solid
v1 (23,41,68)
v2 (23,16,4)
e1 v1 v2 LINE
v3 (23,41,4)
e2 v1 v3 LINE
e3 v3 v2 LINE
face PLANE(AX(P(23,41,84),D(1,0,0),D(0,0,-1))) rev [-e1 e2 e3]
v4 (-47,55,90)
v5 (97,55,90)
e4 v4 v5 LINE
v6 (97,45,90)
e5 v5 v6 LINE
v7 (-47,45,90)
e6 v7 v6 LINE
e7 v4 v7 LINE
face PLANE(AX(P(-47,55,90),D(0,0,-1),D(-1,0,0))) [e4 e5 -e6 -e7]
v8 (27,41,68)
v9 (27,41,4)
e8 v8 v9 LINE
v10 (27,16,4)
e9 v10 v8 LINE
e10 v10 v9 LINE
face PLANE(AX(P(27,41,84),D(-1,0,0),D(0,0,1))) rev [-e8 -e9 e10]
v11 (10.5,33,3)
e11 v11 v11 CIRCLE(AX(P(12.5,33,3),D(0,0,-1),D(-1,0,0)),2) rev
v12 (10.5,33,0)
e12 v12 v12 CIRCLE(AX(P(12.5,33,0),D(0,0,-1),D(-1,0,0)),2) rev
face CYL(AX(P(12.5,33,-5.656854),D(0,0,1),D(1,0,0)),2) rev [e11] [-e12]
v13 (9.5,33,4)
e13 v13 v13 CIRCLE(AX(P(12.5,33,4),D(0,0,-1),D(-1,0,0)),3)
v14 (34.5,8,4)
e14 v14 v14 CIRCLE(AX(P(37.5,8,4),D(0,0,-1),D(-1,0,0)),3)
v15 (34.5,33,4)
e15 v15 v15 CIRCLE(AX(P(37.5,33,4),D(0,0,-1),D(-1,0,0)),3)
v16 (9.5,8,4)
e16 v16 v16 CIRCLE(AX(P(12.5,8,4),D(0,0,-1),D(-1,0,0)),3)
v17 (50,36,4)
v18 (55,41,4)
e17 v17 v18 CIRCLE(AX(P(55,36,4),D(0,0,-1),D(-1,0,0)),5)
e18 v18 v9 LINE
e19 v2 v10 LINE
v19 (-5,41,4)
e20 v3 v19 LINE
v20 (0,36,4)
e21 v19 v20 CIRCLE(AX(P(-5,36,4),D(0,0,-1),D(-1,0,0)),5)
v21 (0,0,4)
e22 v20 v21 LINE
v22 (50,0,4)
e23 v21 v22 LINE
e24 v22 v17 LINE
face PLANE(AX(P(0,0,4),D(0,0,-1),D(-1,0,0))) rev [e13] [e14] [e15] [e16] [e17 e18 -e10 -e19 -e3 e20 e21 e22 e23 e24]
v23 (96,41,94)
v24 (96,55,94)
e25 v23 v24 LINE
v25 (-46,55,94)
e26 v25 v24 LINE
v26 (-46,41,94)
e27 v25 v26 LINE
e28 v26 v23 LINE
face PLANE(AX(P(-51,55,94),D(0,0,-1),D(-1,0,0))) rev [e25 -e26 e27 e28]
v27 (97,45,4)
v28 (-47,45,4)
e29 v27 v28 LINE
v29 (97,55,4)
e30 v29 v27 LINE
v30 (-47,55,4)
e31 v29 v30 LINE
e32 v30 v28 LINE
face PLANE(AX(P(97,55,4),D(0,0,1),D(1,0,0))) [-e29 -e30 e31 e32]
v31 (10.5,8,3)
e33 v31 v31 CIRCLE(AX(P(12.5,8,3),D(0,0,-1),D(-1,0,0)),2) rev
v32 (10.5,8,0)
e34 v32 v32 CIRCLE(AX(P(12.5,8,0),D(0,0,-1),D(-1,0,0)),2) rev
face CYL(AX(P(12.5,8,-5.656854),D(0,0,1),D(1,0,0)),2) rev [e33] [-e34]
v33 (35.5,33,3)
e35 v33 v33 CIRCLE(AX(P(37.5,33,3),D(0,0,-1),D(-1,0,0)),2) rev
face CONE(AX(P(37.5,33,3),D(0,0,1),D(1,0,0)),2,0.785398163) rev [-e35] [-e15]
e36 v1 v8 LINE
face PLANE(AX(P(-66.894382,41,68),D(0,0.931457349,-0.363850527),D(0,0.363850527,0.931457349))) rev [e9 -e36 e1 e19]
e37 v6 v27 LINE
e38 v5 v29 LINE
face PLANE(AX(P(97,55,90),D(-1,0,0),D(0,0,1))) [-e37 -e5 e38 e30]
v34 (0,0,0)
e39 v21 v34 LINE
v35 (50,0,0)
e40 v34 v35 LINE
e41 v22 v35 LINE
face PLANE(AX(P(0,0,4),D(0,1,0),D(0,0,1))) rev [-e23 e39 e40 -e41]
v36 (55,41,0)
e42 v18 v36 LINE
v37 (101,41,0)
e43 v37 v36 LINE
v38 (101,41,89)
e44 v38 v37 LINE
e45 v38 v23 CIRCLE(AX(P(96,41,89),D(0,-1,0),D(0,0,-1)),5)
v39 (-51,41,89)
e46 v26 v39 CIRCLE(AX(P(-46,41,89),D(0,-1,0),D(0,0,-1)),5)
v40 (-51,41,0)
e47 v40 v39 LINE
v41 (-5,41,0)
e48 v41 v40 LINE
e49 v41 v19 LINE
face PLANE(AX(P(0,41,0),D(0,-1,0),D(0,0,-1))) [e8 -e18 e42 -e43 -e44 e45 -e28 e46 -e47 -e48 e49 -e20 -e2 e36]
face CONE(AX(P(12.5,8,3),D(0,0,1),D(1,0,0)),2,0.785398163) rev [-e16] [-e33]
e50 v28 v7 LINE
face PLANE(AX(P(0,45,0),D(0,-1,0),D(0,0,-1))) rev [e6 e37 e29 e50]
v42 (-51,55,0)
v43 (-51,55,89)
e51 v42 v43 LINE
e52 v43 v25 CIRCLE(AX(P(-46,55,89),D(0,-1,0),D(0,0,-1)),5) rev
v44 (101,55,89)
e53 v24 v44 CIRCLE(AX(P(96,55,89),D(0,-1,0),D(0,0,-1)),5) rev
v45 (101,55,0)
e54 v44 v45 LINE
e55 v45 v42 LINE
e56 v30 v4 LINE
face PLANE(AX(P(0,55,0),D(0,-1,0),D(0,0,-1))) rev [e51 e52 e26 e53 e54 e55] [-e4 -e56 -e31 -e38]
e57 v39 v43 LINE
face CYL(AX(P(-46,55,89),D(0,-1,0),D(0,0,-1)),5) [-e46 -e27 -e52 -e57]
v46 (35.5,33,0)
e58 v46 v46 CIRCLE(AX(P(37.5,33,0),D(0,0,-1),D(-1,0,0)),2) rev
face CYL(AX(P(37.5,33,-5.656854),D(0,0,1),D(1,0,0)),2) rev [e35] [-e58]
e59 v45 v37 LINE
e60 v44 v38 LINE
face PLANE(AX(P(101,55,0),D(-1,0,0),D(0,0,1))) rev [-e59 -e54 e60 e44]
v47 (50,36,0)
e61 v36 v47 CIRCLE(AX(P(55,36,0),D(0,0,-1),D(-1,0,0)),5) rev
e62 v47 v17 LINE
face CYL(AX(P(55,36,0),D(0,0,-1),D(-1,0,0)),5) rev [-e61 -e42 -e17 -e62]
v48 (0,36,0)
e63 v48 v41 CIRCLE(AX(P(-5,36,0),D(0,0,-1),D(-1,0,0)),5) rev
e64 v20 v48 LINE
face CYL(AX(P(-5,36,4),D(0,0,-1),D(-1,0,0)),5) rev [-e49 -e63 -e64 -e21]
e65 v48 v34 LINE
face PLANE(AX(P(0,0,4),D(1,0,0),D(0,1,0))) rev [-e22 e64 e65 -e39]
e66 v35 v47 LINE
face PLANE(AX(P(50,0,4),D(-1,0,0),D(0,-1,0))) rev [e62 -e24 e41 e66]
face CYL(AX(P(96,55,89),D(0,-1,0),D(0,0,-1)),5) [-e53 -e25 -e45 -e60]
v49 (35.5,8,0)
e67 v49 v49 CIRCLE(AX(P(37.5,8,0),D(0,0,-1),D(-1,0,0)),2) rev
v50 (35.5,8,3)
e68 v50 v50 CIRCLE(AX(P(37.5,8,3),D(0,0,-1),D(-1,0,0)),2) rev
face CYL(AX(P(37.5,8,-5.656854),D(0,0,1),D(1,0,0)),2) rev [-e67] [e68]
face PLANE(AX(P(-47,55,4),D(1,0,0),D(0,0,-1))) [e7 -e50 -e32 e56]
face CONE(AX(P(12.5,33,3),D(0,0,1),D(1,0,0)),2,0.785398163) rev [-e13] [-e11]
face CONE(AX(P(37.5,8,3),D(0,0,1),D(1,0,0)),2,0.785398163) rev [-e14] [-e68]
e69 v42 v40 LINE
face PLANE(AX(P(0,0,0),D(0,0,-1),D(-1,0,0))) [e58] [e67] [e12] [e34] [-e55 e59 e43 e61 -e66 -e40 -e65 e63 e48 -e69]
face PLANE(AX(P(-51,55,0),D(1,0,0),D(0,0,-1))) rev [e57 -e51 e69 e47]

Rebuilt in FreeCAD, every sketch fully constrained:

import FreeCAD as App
import Part
import Sketcher
from FreeCAD import Vector


def edges_at(feature, points):
    """Names of the edges that pass closest to the given points."""
    edges = feature.Shape.Edges
    near = lambda p: min(range(len(edges)), key=lambda i: edges[i].distToShape(Part.Vertex(*p))[0])
    return sorted({f"Edge{near(p) + 1}" for p in points})


def add_polygon(sketch, points):
    """Adds a closed chain of lines whose ends are joined by coincident constraints."""
    first, n = sketch.GeometryCount, len(points)
    for a, b in zip(points, points[1:] + points[:1]):
        sketch.addGeometry(Part.LineSegment(App.Vector(*a, 0), App.Vector(*b, 0)), False)
    for i in range(n):
        sketch.addConstraint(Sketcher.Constraint("Coincident", first + i, 2, first + (i + 1) % n, 1))

doc = App.newDocument("Part")
params = doc.addObject("Spreadsheet::Sheet", "Params")
for row, (alias, value) in enumerate([
    ("sketch1_width", "50 mm"),
    ("sketch1_height", "41 mm"),
    ("pad1_length", "4 mm"),
    ("sketch2_width", "152 mm"),
    ("sketch2_height", "94 mm"),
    ("pad2_length", "14 mm"),
    ("sketch3_width", "144 mm"),
    ("sketch3_height", "86 mm"),
    ("pocket1_length", "10 mm"),
    ("fillet_radius", "5 mm"),
    ("sketch4_width", "4 mm"),
    ("sketch4_height", "41 mm"),
    ("pad3_length", "80 mm"),
    ("sketch5_width", "16 mm"),
    ("sketch5_width2", "41 mm"),
    ("sketch5_height", "80 mm"),
    ("pocket2_length", "4 mm"),
    ("sketch6_diameter", "4 mm"),
    ("pocket3_length", "4 mm"),
    ("chamfer_size", "1 mm"),
    ("fillet2_radius", "5 mm"),
], start=1):
    params.set(f"A{row}", alias)
    params.set(f"B{row}", "=" + value)
    params.setAlias(f"B{row}", alias)

body = doc.addObject("PartDesign::Body", "Body")

# Sketch on XY plane
sketch1 = doc.addObject("Sketcher::SketchObject", "Sketch")
body.addObject(sketch1)
sketch1.AttachmentSupport = (doc.XY_Plane, [""])
sketch1.MapMode = "FlatFace"
add_polygon(sketch1, [(0, 41), (0, 0), (50, 0), (50, 41)])  # lines 0-3
sketch1.addConstraint([
    Sketcher.Constraint("Vertical", 0),
    Sketcher.Constraint("Horizontal", 1),
    Sketcher.Constraint("Vertical", 2),
    Sketcher.Constraint("Horizontal", 3),
    Sketcher.Constraint("Coincident", 0, 2, -1, 1),
    Sketcher.Constraint("DistanceX", 1, 1, 1, 2, 50.0),
    Sketcher.Constraint("DistanceY", 0, 2, 0, 1, 41.0),
])
sketch1.setExpression("Constraints[9]", "Params.sketch1_width")
sketch1.setExpression("Constraints[10]", "Params.sketch1_height")
pad1 = doc.addObject("PartDesign::Pad", "Pad")
body.addObject(pad1)
pad1.Profile = sketch1
pad1.setExpression("Length", "Params.pad1_length")

# Sketch on XZ plane
sketch2 = doc.addObject("Sketcher::SketchObject", "Sketch001")
body.addObject(sketch2)
sketch2.AttachmentSupport = (doc.XZ_Plane, [""])
sketch2.MapMode = "FlatFace"
sketch2.AttachmentOffset = App.Placement(Vector(0, 0, -41), App.Rotation())
add_polygon(sketch2, [(-51, 0), (-51, 94), (101, 94), (101, 0)])  # lines 0-3
sketch2.addConstraint([
    Sketcher.Constraint("Vertical", 0),
    Sketcher.Constraint("Horizontal", 1),
    Sketcher.Constraint("Vertical", 2),
    Sketcher.Constraint("Horizontal", 3),
    Sketcher.Constraint("PointOnObject", 2, 2, -1),
    Sketcher.Constraint("DistanceX", 1, 1, 1, 2, 152.0),
    Sketcher.Constraint("DistanceY", 0, 1, 0, 2, 94.0),
    Sketcher.Constraint("DistanceX", 0, 2, -1, 1, 51.0),
])
sketch2.setExpression("Constraints[9]", "Params.sketch2_width")
sketch2.setExpression("Constraints[10]", "Params.sketch2_height")
pad2 = doc.addObject("PartDesign::Pad", "Pad001")
body.addObject(pad2)
pad2.Profile = sketch2
pad2.setExpression("Length", "Params.pad2_length")
pad2.Reversed = True

# Sketch on XZ plane
sketch3 = doc.addObject("Sketcher::SketchObject", "Sketch002")
body.addObject(sketch3)
sketch3.AttachmentSupport = (doc.XZ_Plane, [""])
sketch3.MapMode = "FlatFace"
sketch3.AttachmentOffset = App.Placement(Vector(0, 0, -55), App.Rotation())
add_polygon(sketch3, [(97, 4), (97, 90), (-47, 90), (-47, 4)])  # lines 0-3
sketch3.addConstraint([
    Sketcher.Constraint("Vertical", 0),
    Sketcher.Constraint("Horizontal", 1),
    Sketcher.Constraint("Vertical", 2),
    Sketcher.Constraint("Horizontal", 3),
    Sketcher.Constraint("DistanceX", 1, 2, 1, 1, 144.0),
    Sketcher.Constraint("DistanceY", 0, 1, 0, 2, 86.0),
    Sketcher.Constraint("DistanceX", -1, 1, 0, 2, 97.0),
    Sketcher.Constraint("DistanceY", -1, 1, 0, 2, 90.0),
])
sketch3.setExpression("Constraints[8]", "Params.sketch3_width")
sketch3.setExpression("Constraints[9]", "Params.sketch3_height")
pocket1 = doc.addObject("PartDesign::Pocket", "Pocket")
body.addObject(pocket1)
pocket1.Profile = sketch3
pocket1.setExpression("Length", "Params.pocket1_length")
pocket1.Reversed = True
doc.recompute()

fillet = doc.addObject("PartDesign::Fillet", "Fillet")
body.addObject(fillet)
fillet.Base = (pocket1, edges_at(pocket1, [(-51, 48, 94), (101, 48, 94)]))
fillet.setExpression("Radius", "Params.fillet_radius")

# Sketch on XY plane
sketch4 = doc.addObject("Sketcher::SketchObject", "Sketch003")
body.addObject(sketch4)
sketch4.AttachmentSupport = (doc.XY_Plane, [""])
sketch4.MapMode = "FlatFace"
sketch4.AttachmentOffset = App.Placement(Vector(0, 0, 4), App.Rotation())
add_polygon(sketch4, [(23, 41), (23, 0), (27, 0), (27, 41)])  # lines 0-3
sketch4.addConstraint([
    Sketcher.Constraint("Vertical", 0),
    Sketcher.Constraint("Horizontal", 1),
    Sketcher.Constraint("Vertical", 2),
    Sketcher.Constraint("Horizontal", 3),
    Sketcher.Constraint("PointOnObject", 0, 2, -1),
    Sketcher.Constraint("DistanceX", 1, 1, 1, 2, 4.0),
    Sketcher.Constraint("DistanceY", 0, 2, 0, 1, 41.0),
    Sketcher.Constraint("DistanceX", -1, 1, 0, 2, 23.0),
])
sketch4.setExpression("Constraints[9]", "Params.sketch4_width")
sketch4.setExpression("Constraints[10]", "Params.sketch4_height")
pad3 = doc.addObject("PartDesign::Pad", "Pad002")
body.addObject(pad3)
pad3.Profile = sketch4
pad3.setExpression("Length", "Params.pad3_length")

# Sketch on YZ plane
sketch5 = doc.addObject("Sketcher::SketchObject", "Sketch004")
body.addObject(sketch5)
sketch5.AttachmentSupport = (doc.YZ_Plane, [""])
sketch5.MapMode = "FlatFace"
sketch5.AttachmentOffset = App.Placement(Vector(0, 0, 27), App.Rotation())
add_polygon(sketch5, [(0, 84), (0, 4), (16, 4), (41, 68), (41, 84)])  # lines 0-4
sketch5.addConstraint([
    Sketcher.Constraint("Vertical", 0),
    Sketcher.Constraint("Horizontal", 1),
    Sketcher.Constraint("Vertical", 3),
    Sketcher.Constraint("Horizontal", 4),
    Sketcher.Constraint("PointOnObject", 0, 2, -2),
    Sketcher.Constraint("Equal", 1, 3),
    Sketcher.Constraint("DistanceX", 1, 1, 1, 2, 16.0),
    Sketcher.Constraint("DistanceX", 4, 2, 4, 1, 41.0),
    Sketcher.Constraint("DistanceY", 0, 2, 0, 1, 80.0),
    Sketcher.Constraint("DistanceY", -1, 1, 0, 2, 4.0),
])
sketch5.setExpression("Constraints[11]", "Params.sketch5_width")
sketch5.setExpression("Constraints[12]", "Params.sketch5_width2")
sketch5.setExpression("Constraints[13]", "Params.sketch5_height")
pocket2 = doc.addObject("PartDesign::Pocket", "Pocket001")
body.addObject(pocket2)
pocket2.Profile = sketch5
pocket2.setExpression("Length", "Params.pocket2_length")

# Sketch on XY plane
sketch6 = doc.addObject("Sketcher::SketchObject", "Sketch005")
body.addObject(sketch6)
sketch6.AttachmentSupport = (doc.XY_Plane, [""])
sketch6.MapMode = "FlatFace"
sketch6.AttachmentOffset = App.Placement(Vector(0, 0, 4), App.Rotation())
sketch6.addGeometry([
    Part.Circle(Vector(12.5, 8, 0), Vector(0, 0, 1), 2),
    Part.Circle(Vector(37.5, 8, 0), Vector(0, 0, 1), 2),
    Part.Circle(Vector(37.5, 33, 0), Vector(0, 0, 1), 2),
    Part.Circle(Vector(12.5, 33, 0), Vector(0, 0, 1), 2),
], False)
sketch6.addConstraint([
    Sketcher.Constraint("Equal", 0, 1),
    Sketcher.Constraint("Equal", 1, 2),
    Sketcher.Constraint("Equal", 2, 3),
    Sketcher.Constraint("Horizontal", 0, 3, 1, 3),
    Sketcher.Constraint("Horizontal", 2, 3, 3, 3),
    Sketcher.Constraint("Vertical", 1, 3, 2, 3),
    Sketcher.Constraint("Vertical", 0, 3, 3, 3),
    Sketcher.Constraint("Diameter", 0, 4.0),
    Sketcher.Constraint("DistanceY", -1, 1, 0, 3, 8.0),
    Sketcher.Constraint("DistanceY", -1, 1, 2, 3, 33.0),
    Sketcher.Constraint("DistanceX", 0, 3, 1, 3, 25.0),
    Sketcher.Constraint("DistanceX", -1, 1, 0, 3, 12.5),
])
sketch6.setExpression("Constraints[7]", "Params.sketch6_diameter")
pocket3 = doc.addObject("PartDesign::Pocket", "Pocket002")
body.addObject(pocket3)
pocket3.Profile = sketch6
pocket3.setExpression("Length", "Params.pocket3_length")
doc.recompute()

chamfer = doc.addObject("PartDesign::Chamfer", "Chamfer")
body.addObject(chamfer)
chamfer.Base = (pocket3, edges_at(pocket3, [
    (10.5, 8, 4),
    (14.5, 33, 4),
    (39.5, 33, 4),
    (35.5, 8, 4),
]))
chamfer.setExpression("Size", "Params.chamfer_size")
doc.recompute()

fillet2 = doc.addObject("PartDesign::Fillet", "Fillet001")
body.addObject(fillet2)
fillet2.Base = (chamfer, edges_at(chamfer, [(0, 41, 2), (50, 41, 2)]))
fillet2.setExpression("Radius", "Params.fillet2_radius")

doc.recompute()
